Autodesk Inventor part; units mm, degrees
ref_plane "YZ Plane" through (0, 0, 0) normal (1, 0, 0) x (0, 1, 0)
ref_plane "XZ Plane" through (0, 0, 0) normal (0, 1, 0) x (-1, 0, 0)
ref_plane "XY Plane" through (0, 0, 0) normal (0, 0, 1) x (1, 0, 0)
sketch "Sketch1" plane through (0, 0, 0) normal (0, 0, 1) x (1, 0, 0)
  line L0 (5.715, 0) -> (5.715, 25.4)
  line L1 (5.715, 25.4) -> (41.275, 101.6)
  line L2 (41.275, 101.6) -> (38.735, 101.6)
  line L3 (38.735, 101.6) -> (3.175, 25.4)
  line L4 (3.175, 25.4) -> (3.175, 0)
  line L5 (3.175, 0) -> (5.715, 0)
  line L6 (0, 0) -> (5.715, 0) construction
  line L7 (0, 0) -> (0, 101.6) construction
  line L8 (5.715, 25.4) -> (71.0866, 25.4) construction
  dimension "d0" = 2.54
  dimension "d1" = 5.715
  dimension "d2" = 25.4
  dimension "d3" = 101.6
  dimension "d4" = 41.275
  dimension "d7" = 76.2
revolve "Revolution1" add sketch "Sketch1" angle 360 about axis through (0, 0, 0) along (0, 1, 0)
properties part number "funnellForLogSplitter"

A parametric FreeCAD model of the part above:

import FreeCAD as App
import Part
import Sketcher
Q = App.Units.Quantity

doc = App.newDocument("Part")
params = doc.addObject("Spreadsheet::Sheet", "Params")
for row, (alias, value) in enumerate([
    ("sketch1_height", "1 in"),
    ("sketch1_width", "0.1 in"),
    ("revolution_angle", "360 deg"),
], start=1):
    params.set(f"A{row}", alias)
    params.set(f"B{row}", "=" + value)
    params.setAlias(f"B{row}", alias)

body = doc.addObject("PartDesign::Body", "Body")

# Sketch on XY plane
sketch1 = body.newObject("Sketcher::SketchObject", "Sketch")
sketch1.AttachmentSupport = (doc.getObject("XY_Plane"), [""])
sketch1.MapMode = "FlatFace"
sketch1.addGeometry([
    Part.LineSegment(App.Vector(3.175, 0, 0), App.Vector(5.715, 0, 0)),  # 0
    Part.LineSegment(App.Vector(5.715, 0, 0), App.Vector(5.715, 25.4, 0)),  # 1
    Part.LineSegment(App.Vector(5.715, 25.4, 0), App.Vector(41.275, 101.6, 0)),  # 2
    Part.LineSegment(App.Vector(41.275, 101.6, 0), App.Vector(38.735, 101.6, 0)),  # 3
    Part.LineSegment(App.Vector(38.735, 101.6, 0), App.Vector(3.175, 25.4, 0)),  # 4
    Part.LineSegment(App.Vector(3.175, 25.4, 0), App.Vector(3.175, 0, 0)),  # 5
], False)
sketch1.addConstraint([
    Sketcher.Constraint("Coincident", 0, 2, 1, 1),
    Sketcher.Constraint("Coincident", 1, 2, 2, 1),
    Sketcher.Constraint("Coincident", 2, 2, 3, 1),
    Sketcher.Constraint("Coincident", 3, 2, 4, 1),
    Sketcher.Constraint("Coincident", 4, 2, 5, 1),
    Sketcher.Constraint("Coincident", 5, 2, 0, 1),
    Sketcher.Constraint("Horizontal", 0),
    Sketcher.Constraint("Vertical", 1),
    Sketcher.Constraint("Horizontal", 3),
    Sketcher.Constraint("Vertical", 5),
    Sketcher.Constraint("PointOnObject", 0, 2, -1),
    Sketcher.Constraint("Parallel", 2, 4),
    Sketcher.Constraint("Horizontal", 1, 2, 4, 2),
    Sketcher.Constraint("DistanceY", 1, 1, 1, 2, Q("1 in")),
    Sketcher.Constraint("DistanceX", 0, 1, 0, 2, Q("0.1 in")),
    Sketcher.Constraint("DistanceY", -1, 1, 2, 2, Q("4 in")),
    Sketcher.Constraint("DistanceX", -1, 1, 0, 2, Q("0.225 in")),
    Sketcher.Constraint("DistanceX", -1, 1, 2, 2, Q("1.625 in")),
])
sketch1.setExpression("Constraints[13]", "Params.sketch1_height")
sketch1.setExpression("Constraints[14]", "Params.sketch1_width")
revolution = body.newObject("PartDesign::Revolution", "Revolution")
revolution.Profile = sketch1
revolution.ReferenceAxis = (sketch1, ["V_Axis"])
revolution.setExpression("Angle", "Params.revolution_angle")

doc.recompute()
